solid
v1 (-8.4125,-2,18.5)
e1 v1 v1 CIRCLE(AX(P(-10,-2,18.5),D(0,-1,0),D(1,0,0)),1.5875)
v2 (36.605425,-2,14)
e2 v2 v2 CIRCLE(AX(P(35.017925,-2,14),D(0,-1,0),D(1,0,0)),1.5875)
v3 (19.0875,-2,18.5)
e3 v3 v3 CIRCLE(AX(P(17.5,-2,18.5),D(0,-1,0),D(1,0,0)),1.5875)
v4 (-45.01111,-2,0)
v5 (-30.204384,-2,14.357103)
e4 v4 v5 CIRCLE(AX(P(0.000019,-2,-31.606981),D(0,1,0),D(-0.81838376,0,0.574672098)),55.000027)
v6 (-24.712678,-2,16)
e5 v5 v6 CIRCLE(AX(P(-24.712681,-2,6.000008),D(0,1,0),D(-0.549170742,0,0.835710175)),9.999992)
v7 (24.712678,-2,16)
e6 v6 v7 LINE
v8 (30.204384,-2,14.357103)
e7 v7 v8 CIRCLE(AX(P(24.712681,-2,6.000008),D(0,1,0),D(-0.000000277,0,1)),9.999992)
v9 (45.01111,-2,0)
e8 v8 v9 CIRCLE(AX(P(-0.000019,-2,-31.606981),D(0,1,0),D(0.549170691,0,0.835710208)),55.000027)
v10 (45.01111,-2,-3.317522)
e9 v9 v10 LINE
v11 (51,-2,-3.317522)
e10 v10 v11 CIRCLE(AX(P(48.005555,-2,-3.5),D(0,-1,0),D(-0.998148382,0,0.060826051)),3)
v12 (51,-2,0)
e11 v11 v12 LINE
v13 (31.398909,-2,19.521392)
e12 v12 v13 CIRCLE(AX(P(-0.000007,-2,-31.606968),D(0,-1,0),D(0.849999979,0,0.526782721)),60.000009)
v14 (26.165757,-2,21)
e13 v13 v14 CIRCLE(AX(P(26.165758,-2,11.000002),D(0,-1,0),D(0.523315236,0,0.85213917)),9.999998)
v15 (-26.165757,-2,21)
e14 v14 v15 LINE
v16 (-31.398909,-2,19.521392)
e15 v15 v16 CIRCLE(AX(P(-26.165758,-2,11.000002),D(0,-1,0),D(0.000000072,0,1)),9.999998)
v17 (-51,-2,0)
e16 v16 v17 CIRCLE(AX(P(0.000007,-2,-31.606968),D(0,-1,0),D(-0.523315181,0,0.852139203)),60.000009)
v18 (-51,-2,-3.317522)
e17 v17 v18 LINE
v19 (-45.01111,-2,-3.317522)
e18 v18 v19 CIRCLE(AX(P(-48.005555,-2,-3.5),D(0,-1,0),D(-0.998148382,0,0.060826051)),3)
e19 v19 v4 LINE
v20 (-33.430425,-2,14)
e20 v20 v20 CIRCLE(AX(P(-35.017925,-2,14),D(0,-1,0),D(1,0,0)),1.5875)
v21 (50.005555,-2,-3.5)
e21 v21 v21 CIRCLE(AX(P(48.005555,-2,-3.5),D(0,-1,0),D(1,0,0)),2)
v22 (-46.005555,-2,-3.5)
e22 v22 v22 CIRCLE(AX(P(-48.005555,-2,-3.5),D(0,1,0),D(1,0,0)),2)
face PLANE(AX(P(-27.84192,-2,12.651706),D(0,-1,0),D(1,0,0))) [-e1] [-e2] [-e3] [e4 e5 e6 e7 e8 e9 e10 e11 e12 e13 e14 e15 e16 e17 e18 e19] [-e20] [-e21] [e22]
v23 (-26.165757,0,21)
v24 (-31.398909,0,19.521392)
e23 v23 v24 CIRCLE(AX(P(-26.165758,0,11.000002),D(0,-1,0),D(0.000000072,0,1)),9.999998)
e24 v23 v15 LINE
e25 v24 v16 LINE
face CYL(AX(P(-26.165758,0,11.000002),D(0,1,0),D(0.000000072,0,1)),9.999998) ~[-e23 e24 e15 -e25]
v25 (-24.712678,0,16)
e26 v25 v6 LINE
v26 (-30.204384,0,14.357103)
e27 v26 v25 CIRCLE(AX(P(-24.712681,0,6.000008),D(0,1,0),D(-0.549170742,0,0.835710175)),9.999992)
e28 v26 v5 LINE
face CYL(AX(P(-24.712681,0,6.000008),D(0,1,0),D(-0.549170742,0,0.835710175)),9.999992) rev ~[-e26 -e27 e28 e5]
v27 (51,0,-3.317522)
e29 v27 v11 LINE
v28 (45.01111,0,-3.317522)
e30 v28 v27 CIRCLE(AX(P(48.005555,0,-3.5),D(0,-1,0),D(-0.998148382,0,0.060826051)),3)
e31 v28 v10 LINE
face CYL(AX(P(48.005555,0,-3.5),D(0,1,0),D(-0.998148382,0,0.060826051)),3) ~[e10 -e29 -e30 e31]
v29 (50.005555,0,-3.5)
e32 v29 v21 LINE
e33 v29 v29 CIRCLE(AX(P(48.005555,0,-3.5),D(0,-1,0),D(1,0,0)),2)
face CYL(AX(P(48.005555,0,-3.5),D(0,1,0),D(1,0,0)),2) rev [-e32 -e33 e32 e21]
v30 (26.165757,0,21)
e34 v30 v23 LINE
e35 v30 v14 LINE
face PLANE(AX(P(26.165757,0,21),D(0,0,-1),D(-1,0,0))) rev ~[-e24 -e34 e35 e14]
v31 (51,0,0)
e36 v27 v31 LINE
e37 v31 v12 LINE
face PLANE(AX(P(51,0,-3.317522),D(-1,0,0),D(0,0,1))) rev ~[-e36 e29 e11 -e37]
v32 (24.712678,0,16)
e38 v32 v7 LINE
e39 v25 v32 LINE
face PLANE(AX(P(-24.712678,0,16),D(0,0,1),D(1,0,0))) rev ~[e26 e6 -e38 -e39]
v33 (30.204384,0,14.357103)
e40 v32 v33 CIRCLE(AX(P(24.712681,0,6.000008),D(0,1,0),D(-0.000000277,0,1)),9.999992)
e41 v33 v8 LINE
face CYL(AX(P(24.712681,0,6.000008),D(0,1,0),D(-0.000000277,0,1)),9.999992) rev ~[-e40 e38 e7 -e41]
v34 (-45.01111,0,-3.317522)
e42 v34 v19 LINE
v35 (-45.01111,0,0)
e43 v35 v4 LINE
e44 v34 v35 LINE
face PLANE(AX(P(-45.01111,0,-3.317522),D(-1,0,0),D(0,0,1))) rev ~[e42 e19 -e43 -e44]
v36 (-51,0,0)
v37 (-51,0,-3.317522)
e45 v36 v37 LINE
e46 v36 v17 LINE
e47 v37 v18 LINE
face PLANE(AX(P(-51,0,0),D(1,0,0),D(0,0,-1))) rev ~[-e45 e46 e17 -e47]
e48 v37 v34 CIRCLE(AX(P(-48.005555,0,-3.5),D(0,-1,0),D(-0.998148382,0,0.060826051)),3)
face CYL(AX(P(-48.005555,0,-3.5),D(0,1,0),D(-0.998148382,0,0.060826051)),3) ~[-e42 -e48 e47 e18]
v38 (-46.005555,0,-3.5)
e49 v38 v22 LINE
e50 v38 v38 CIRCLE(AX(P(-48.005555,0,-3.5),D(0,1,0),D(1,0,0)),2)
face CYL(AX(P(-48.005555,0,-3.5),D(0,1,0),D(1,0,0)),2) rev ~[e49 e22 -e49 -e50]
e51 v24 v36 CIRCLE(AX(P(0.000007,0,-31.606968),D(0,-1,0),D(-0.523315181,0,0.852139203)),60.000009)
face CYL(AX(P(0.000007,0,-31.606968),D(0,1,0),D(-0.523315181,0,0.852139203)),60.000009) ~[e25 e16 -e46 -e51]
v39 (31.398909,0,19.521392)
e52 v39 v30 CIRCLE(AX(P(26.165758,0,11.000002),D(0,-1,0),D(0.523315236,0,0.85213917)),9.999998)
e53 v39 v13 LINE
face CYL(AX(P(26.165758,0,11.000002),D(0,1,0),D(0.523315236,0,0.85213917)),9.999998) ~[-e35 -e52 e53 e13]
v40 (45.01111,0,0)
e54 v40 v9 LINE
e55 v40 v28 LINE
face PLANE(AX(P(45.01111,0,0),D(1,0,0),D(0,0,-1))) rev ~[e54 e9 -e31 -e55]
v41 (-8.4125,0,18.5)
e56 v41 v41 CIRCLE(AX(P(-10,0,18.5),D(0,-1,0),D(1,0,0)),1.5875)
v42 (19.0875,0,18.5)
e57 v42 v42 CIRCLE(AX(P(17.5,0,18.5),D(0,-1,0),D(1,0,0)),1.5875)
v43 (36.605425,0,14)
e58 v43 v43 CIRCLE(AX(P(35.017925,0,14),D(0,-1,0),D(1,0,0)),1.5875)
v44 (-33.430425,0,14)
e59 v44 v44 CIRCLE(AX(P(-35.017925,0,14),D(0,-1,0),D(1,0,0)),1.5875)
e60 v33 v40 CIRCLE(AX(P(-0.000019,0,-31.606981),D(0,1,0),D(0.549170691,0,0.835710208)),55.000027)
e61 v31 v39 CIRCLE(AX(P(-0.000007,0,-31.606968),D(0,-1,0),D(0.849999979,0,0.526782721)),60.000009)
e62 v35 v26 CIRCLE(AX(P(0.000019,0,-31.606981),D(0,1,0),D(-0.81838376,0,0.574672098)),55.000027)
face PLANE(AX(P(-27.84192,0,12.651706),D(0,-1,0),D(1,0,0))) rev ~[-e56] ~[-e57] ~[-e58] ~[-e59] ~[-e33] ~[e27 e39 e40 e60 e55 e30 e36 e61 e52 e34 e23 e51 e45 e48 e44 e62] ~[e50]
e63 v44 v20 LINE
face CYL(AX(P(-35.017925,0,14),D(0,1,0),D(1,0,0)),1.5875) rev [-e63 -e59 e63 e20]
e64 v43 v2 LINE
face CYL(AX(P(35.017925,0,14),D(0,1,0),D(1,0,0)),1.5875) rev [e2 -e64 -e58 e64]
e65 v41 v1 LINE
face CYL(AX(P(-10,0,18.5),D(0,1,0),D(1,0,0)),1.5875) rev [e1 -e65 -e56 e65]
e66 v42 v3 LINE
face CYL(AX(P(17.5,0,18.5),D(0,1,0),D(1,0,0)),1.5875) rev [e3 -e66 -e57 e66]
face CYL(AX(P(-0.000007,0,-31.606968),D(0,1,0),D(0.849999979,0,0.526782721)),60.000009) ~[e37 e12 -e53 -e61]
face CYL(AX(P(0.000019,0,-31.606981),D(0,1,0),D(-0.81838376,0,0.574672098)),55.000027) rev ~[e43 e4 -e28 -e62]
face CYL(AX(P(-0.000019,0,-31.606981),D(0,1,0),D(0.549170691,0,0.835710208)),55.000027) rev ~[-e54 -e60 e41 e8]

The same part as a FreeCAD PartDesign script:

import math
import FreeCAD as App
import Part
import Sketcher
Q = App.Units.Quantity

doc = App.newDocument("Part")
body = doc.addObject("PartDesign::Body", "Body")

sketch1 = body.newObject("Sketcher::SketchObject", "Sketch")
sketch1.AttachmentSupport = (doc.getObject("XZ_Plane"), [""])
sketch1.MapMode = "FlatFace"
sketch1.addGeometry([
    Part.LineSegment(App.Vector(-51, 0, 0), App.Vector(-51, -3.317522, 0)),
    Part.ArcOfCircle(Part.Circle(App.Vector(-48.005555, -3.5, 0), App.Vector(0, 0, 1), 3), math.radians(176.512771), math.radians(363.487229)),
    Part.LineSegment(App.Vector(-45.01111, -3.317522, 0), App.Vector(-45.01111, 0, 0)),
    Part.ArcOfCircle(Part.Circle(App.Vector(0.000019, -31.606981, 0), App.Vector(0, 0, 1), 55.000027), math.radians(123.310137), math.radians(144.923328)),
    Part.ArcOfCircle(Part.Circle(App.Vector(-24.712681, 6.000008, 0), App.Vector(0, 0, 1), 9.999992), math.radians(89.999984), math.radians(123.310141)),
    Part.LineSegment(App.Vector(-24.712678, 16, 0), App.Vector(24.712678, 16, 0)),
    Part.ArcOfCircle(Part.Circle(App.Vector(24.712681, 6.000008, 0), App.Vector(0, 0, 1), 9.999992), math.radians(56.689859), math.radians(90.000016)),
    Part.ArcOfCircle(Part.Circle(App.Vector(-0.000019, -31.606981, 0), App.Vector(0, 0, 1), 55.000027), math.radians(35.076672), math.radians(56.689863)),
    Part.LineSegment(App.Vector(45.01111, 0, 0), App.Vector(45.01111, -3.317522, 0)),
    Part.ArcOfCircle(Part.Circle(App.Vector(48.005555, -3.5, 0), App.Vector(0, 0, 1), 3), math.radians(176.512771), math.radians(363.487229)),
    Part.LineSegment(App.Vector(51, -3.317522, 0), App.Vector(51, 0, 0)),
    Part.ArcOfCircle(Part.Circle(App.Vector(-0.000007, -31.606968, 0), App.Vector(0, 0, 1), 60.000009), math.radians(31.788333), math.radians(58.445109)),
    Part.ArcOfCircle(Part.Circle(App.Vector(26.165758, 11.000002, 0), App.Vector(0, 0, 1), 9.999998), math.radians(58.445105), math.radians(90.000004)),
    Part.LineSegment(App.Vector(26.165757, 21, 0), App.Vector(-26.165757, 21, 0)),
    Part.ArcOfCircle(Part.Circle(App.Vector(-26.165758, 11.000002, 0), App.Vector(0, 0, 1), 9.999998), math.radians(89.999996), math.radians(121.554895)),
    Part.ArcOfCircle(Part.Circle(App.Vector(0.000007, -31.606968, 0), App.Vector(0, 0, 1), 60.000009), math.radians(121.554891), math.radians(148.211667)),
    Part.Circle(App.Vector(-48.005555, -3.5, 0), App.Vector(0, 0, 1), 2),
    Part.Circle(App.Vector(48.005555, -3.5, 0), App.Vector(0, 0, 1), 2),
    Part.Circle(App.Vector(-35.017925, 14, 0), App.Vector(0, 0, 1), 1.5875),
    Part.Circle(App.Vector(-10, 18.5, 0), App.Vector(0, 0, 1), 1.5875),
    Part.Circle(App.Vector(17.5, 18.5, 0), App.Vector(0, 0, 1), 1.5875),
    Part.Circle(App.Vector(35.017925, 14, 0), App.Vector(0, 0, 1), 1.5875),
], False)
sketch1.addConstraint([
    Sketcher.Constraint("Coincident", 0, 2, 1, 1),
    Sketcher.Constraint("Coincident", 1, 2, 2, 1),
    Sketcher.Constraint("Coincident", 2, 2, 3, 2),
    Sketcher.Constraint("Tangent", 3, 1, 4, 2),
    Sketcher.Constraint("Tangent", 4, 1, 5, 1),
    Sketcher.Constraint("Tangent", 5, 2, 6, 2),
    Sketcher.Constraint("Tangent", 6, 1, 7, 2),
    Sketcher.Constraint("Coincident", 7, 1, 8, 1),
    Sketcher.Constraint("Coincident", 8, 2, 9, 1),
    Sketcher.Constraint("Coincident", 9, 2, 10, 1),
    Sketcher.Constraint("Coincident", 10, 2, 11, 1),
    Sketcher.Constraint("Tangent", 11, 2, 12, 1),
    Sketcher.Constraint("Tangent", 12, 2, 13, 1),
    Sketcher.Constraint("Tangent", 13, 2, 14, 1),
    Sketcher.Constraint("Tangent", 14, 2, 15, 1),
    Sketcher.Constraint("Coincident", 15, 2, 0, 1),
    Sketcher.Constraint("Vertical", 0),
    Sketcher.Constraint("Vertical", 2),
    Sketcher.Constraint("Horizontal", 5),
    Sketcher.Constraint("Vertical", 8),
    Sketcher.Constraint("Vertical", 10),
    Sketcher.Constraint("Horizontal", 13),
    Sketcher.Constraint("Coincident", 16, 3, 1, 3),
    Sketcher.Constraint("Coincident", 17, 3, 9, 3),
    Sketcher.Constraint("Equal", 4, 6),
    Sketcher.Constraint("Equal", 3, 7),
    Sketcher.Constraint("Equal", 1, 9),
    Sketcher.Constraint("Equal", 12, 14),
    Sketcher.Constraint("Equal", 11, 15),
    Sketcher.Constraint("Equal", 16, 17),
    Sketcher.Constraint("Equal", 18, 19),
    Sketcher.Constraint("Equal", 19, 20),
    Sketcher.Constraint("Equal", 20, 21),
    Sketcher.Constraint("Symmetric", 2, 2, 7, 1, -1, 1),
    Sketcher.Constraint("Symmetric", 10, 2, 15, 2, -1, 1),
    Sketcher.Constraint("Symmetric", 3, 3, 7, 3, -2),
    Sketcher.Constraint("Symmetric", 1, 3, 9, 3, -2),
    Sketcher.Constraint("Symmetric", 11, 3, 15, 3, -2),
    Sketcher.Constraint("Symmetric", 18, 3, 21, 3, -2),
    Sketcher.Constraint("Horizontal", 19, 3, 20, 3),
    Sketcher.Constraint("Horizontal", 0, 2, 1, 2),
    Sketcher.Constraint("Diameter", 16, Q("4 mm")),
    Sketcher.Constraint("Radius", 1, Q("3 mm")),
    Sketcher.Constraint("Diameter", 18, Q("3.175 mm")),
    Sketcher.Constraint("DistanceY", -1, 1, 18, 3, Q("14 mm")),
    Sketcher.Constraint("DistanceX", 19, 3, -1, 1, Q("10 mm")),
    Sketcher.Constraint("DistanceX", 0, 2, -1, 1, Q("51 mm")),
    Sketcher.Constraint("DistanceY", -1, 1, 4, 1, Q("16 mm")),
    Sketcher.Constraint("DistanceY", -1, 1, 12, 2, Q("21 mm")),
    Sketcher.Constraint("DistanceY", 17, 3, 20, 3, Q("22 mm")),
    Sketcher.Constraint("DistanceY", 1, 3, -1, 1, Q("3.5 mm")),
    Sketcher.Constraint("DistanceX", -1, 1, 20, 3, Q("17.5 mm")),
    Sketcher.Constraint("Radius", 11, Q("60.000009 mm")),
    Sketcher.Constraint("Radius", 3, Q("55.000027 mm")),
    Sketcher.Constraint("Radius", 4, Q("9.999992 mm")),
    Sketcher.Constraint("Radius", 12, Q("9.999998 mm")),
    Sketcher.Constraint("DistanceY", 0, 2, 0, 1, Q("3.317522 mm")),
    Sketcher.Constraint("DistanceX", 4, 3, 3, 3, Q("24.712699 mm")),
    Sketcher.Constraint("DistanceX", 13, 2, 13, 1, Q("52.331514 mm")),
    Sketcher.Constraint("DistanceX", 16, 3, 18, 3, Q("12.98763 mm")),
])
pad1 = body.newObject("PartDesign::Pad", "Pad")
pad1.Profile = sketch1
pad1.Length = 2

doc.recompute()
